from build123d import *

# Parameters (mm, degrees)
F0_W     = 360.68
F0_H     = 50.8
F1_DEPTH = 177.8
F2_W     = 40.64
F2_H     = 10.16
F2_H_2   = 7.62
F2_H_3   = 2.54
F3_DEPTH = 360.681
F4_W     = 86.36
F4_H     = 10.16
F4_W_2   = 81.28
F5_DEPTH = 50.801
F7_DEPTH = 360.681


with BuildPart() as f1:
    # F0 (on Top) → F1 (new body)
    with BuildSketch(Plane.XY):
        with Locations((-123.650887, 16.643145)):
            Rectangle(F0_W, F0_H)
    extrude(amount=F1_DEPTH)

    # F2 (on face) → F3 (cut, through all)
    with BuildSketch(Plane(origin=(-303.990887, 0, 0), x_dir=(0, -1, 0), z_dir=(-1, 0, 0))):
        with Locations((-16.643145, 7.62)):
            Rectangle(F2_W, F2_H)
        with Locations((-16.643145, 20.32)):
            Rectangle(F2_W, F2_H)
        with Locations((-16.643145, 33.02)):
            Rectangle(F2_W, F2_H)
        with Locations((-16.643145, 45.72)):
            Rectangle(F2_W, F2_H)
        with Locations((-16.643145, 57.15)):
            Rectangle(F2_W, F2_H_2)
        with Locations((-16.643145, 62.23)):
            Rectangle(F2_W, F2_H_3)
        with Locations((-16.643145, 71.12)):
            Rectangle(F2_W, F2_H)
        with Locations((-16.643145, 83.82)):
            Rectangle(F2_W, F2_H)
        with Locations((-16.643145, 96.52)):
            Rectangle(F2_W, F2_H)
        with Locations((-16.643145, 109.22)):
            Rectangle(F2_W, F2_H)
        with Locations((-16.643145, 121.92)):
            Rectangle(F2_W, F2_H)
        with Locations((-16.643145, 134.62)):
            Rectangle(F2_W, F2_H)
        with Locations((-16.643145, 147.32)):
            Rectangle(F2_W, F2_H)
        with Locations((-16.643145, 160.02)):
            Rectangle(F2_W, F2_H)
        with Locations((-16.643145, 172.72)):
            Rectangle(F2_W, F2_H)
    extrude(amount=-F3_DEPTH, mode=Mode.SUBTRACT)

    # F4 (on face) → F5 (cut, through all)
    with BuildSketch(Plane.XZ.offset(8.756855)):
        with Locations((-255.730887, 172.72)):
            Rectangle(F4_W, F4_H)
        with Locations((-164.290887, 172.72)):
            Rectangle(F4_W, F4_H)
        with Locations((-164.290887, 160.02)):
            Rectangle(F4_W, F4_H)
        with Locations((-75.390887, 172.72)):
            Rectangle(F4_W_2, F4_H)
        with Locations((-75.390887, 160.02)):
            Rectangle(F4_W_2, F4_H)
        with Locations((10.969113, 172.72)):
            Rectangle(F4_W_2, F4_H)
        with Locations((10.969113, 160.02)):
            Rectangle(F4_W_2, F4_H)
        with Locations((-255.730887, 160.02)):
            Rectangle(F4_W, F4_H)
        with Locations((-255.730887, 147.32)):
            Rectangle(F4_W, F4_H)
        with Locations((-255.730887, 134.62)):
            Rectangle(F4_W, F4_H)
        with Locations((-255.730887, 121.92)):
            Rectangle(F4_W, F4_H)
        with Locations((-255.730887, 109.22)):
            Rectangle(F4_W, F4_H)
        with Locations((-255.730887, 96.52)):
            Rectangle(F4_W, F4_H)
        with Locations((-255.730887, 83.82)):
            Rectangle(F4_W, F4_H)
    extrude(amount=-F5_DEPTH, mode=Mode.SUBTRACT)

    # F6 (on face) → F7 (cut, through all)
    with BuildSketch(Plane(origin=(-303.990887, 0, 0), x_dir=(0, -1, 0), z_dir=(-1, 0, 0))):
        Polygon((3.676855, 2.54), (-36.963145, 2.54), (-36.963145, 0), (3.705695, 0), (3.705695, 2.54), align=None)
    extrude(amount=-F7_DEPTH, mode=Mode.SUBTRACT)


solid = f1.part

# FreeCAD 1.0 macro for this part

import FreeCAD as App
import Part
import Sketcher

V = App.Vector
Q = App.Units.Quantity


def add_polygon(sketch, points):
    """Adds a closed chain of lines whose ends are joined by coincident constraints."""
    first, n = sketch.GeometryCount, len(points)
    for a, b in zip(points, points[1:] + points[:1]):
        sketch.addGeometry(Part.LineSegment(App.Vector(*a, 0), App.Vector(*b, 0)), False)
    for i in range(n):
        sketch.addConstraint(Sketcher.Constraint("Coincident", first + i, 2, first + (i + 1) % n, 1))

doc = App.newDocument("Part")
params = doc.addObject("Spreadsheet::Sheet", "Params")
for row, (alias, value) in enumerate([
    ("sketch1_height", "2 in"),
    ("sketch1_width", "14.2 in"),
    ("pad1_length", "7 in"),
    ("sketch2_width", "1.6 in"),
    ("sketch2_height", "0.4 in"),
    ("sketch3_width", "3.4 in"),
    ("sketch3_width2", "3.2 in"),
    ("sketch3_height", "0.4 in"),
    ("sketch4_height", "0.1 in"),
], start=1):
    params.set(f"A{row}", alias)
    params.set(f"B{row}", "=" + value)
    params.setAlias(f"B{row}", alias)

body = doc.addObject("PartDesign::Body", "Body")

sketch1 = body.newObject("Sketcher::SketchObject", "Sketch")
sketch1.AttachmentSupport = (doc.getObject("XY_Plane"), [""])
sketch1.MapMode = "FlatFace"
add_polygon(sketch1, [(-304, 42), (-304, -9), (57, -9), (57, 42)])
sketch1.addConstraint(Sketcher.Constraint("Vertical", 0))
sketch1.addConstraint(Sketcher.Constraint("Horizontal", 1))
sketch1.addConstraint(Sketcher.Constraint("Vertical", 2))
sketch1.addConstraint(Sketcher.Constraint("Horizontal", 3))
sketch1.addConstraint(Sketcher.Constraint("DistanceY", 0, 2, 0, 1, Q("2 in")))
sketch1.addConstraint(Sketcher.Constraint("DistanceX", 1, 1, 1, 2, Q("14.2 in")))
sketch1.addConstraint(Sketcher.Constraint("DistanceX", 0, 2, -1, 1, 303.990887))
sketch1.addConstraint(Sketcher.Constraint("DistanceY", 0, 2, -1, 1, 8.756855))
sketch1.setExpression("Constraints[8]", "Params.sketch1_height")
sketch1.setExpression("Constraints[9]", "Params.sketch1_width")
pad1 = body.newObject("PartDesign::Pad", "Pad")
pad1.Profile = sketch1
pad1.setExpression("Length", "Params.pad1_length")

sketch2 = body.newObject("Sketcher::SketchObject", "Sketch001")
sketch2.AttachmentSupport = (doc.getObject("YZ_Plane"), [""])
sketch2.MapMode = "FlatFace"
sketch2.AttachmentOffset = App.Placement(V(0, 0, -303.990887), App.Rotation())
add_polygon(sketch2, [(37, 13), (37, 3), (-4, 3), (-4, 13)])
add_polygon(sketch2, [(37, 25), (37, 15), (-4, 15), (-4, 25)])
add_polygon(sketch2, [(37, 38), (37, 28), (-4, 28), (-4, 38)])
add_polygon(sketch2, [(37, 51), (37, 41), (-4, 41), (-4, 51)])
add_polygon(sketch2, [(37, 53), (-4, 53), (-4, 64), (37, 64)])
add_polygon(sketch2, [(37, 76), (37, 66), (-4, 66), (-4, 76)])
add_polygon(sketch2, [(37, 89), (37, 79), (-4, 79), (-4, 89)])
add_polygon(sketch2, [(37, 102), (37, 91), (-4, 91), (-4, 102)])
add_polygon(sketch2, [(37, 114), (37, 104), (-4, 104), (-4, 114)])
add_polygon(sketch2, [(37, 127), (37, 117), (-4, 117), (-4, 127)])
add_polygon(sketch2, [(37, 140), (37, 130), (-4, 130), (-4, 140)])
add_polygon(sketch2, [(37, 152), (37, 142), (-4, 142), (-4, 152)])
add_polygon(sketch2, [(37, 165), (37, 155), (-4, 155), (-4, 165)])
add_polygon(sketch2, [(37, 178), (37, 168), (-4, 168), (-4, 178)])
sketch2.addConstraint(Sketcher.Constraint("Vertical", 0))
sketch2.addConstraint(Sketcher.Constraint("Horizontal", 1))
sketch2.addConstraint(Sketcher.Constraint("Vertical", 2))
sketch2.addConstraint(Sketcher.Constraint("Horizontal", 3))
sketch2.addConstraint(Sketcher.Constraint("Vertical", 4))
sketch2.addConstraint(Sketcher.Constraint("Horizontal", 5))
sketch2.addConstraint(Sketcher.Constraint("Vertical", 6))
sketch2.addConstraint(Sketcher.Constraint("Horizontal", 7))
sketch2.addConstraint(Sketcher.Constraint("Vertical", 8))
sketch2.addConstraint(Sketcher.Constraint("Horizontal", 9))
sketch2.addConstraint(Sketcher.Constraint("Vertical", 10))
sketch2.addConstraint(Sketcher.Constraint("Horizontal", 11))
sketch2.addConstraint(Sketcher.Constraint("Vertical", 12))
sketch2.addConstraint(Sketcher.Constraint("Horizontal", 13))
sketch2.addConstraint(Sketcher.Constraint("Vertical", 14))
sketch2.addConstraint(Sketcher.Constraint("Horizontal", 15))
sketch2.addConstraint(Sketcher.Constraint("Horizontal", 16))
sketch2.addConstraint(Sketcher.Constraint("Vertical", 17))
sketch2.addConstraint(Sketcher.Constraint("Horizontal", 18))
sketch2.addConstraint(Sketcher.Constraint("Vertical", 19))
sketch2.addConstraint(Sketcher.Constraint("Vertical", 20))
sketch2.addConstraint(Sketcher.Constraint("Horizontal", 21))
sketch2.addConstraint(Sketcher.Constraint("Vertical", 22))
sketch2.addConstraint(Sketcher.Constraint("Horizontal", 23))
sketch2.addConstraint(Sketcher.Constraint("Vertical", 24))
sketch2.addConstraint(Sketcher.Constraint("Horizontal", 25))
sketch2.addConstraint(Sketcher.Constraint("Vertical", 26))
sketch2.addConstraint(Sketcher.Constraint("Horizontal", 27))
sketch2.addConstraint(Sketcher.Constraint("Vertical", 28))
sketch2.addConstraint(Sketcher.Constraint("Horizontal", 29))
sketch2.addConstraint(Sketcher.Constraint("Vertical", 30))
sketch2.addConstraint(Sketcher.Constraint("Horizontal", 31))
sketch2.addConstraint(Sketcher.Constraint("Vertical", 32))
sketch2.addConstraint(Sketcher.Constraint("Horizontal", 33))
sketch2.addConstraint(Sketcher.Constraint("Vertical", 34))
sketch2.addConstraint(Sketcher.Constraint("Horizontal", 35))
sketch2.addConstraint(Sketcher.Constraint("Vertical", 36))
sketch2.addConstraint(Sketcher.Constraint("Horizontal", 37))
sketch2.addConstraint(Sketcher.Constraint("Vertical", 38))
sketch2.addConstraint(Sketcher.Constraint("Horizontal", 39))
sketch2.addConstraint(Sketcher.Constraint("Vertical", 40))
sketch2.addConstraint(Sketcher.Constraint("Horizontal", 41))
sketch2.addConstraint(Sketcher.Constraint("Vertical", 42))
sketch2.addConstraint(Sketcher.Constraint("Horizontal", 43))
sketch2.addConstraint(Sketcher.Constraint("Vertical", 44))
sketch2.addConstraint(Sketcher.Constraint("Horizontal", 45))
sketch2.addConstraint(Sketcher.Constraint("Vertical", 46))
sketch2.addConstraint(Sketcher.Constraint("Horizontal", 47))
sketch2.addConstraint(Sketcher.Constraint("Vertical", 48))
sketch2.addConstraint(Sketcher.Constraint("Horizontal", 49))
sketch2.addConstraint(Sketcher.Constraint("Vertical", 50))
sketch2.addConstraint(Sketcher.Constraint("Horizontal", 51))
sketch2.addConstraint(Sketcher.Constraint("Vertical", 52))
sketch2.addConstraint(Sketcher.Constraint("Horizontal", 53))
sketch2.addConstraint(Sketcher.Constraint("Vertical", 54))
sketch2.addConstraint(Sketcher.Constraint("Horizontal", 55))
sketch2.addConstraint(Sketcher.Constraint("Vertical", 3, 2, 4, 2))
sketch2.addConstraint(Sketcher.Constraint("Vertical", 2, 2, 5, 2))
sketch2.addConstraint(Sketcher.Constraint("Vertical", 7, 2, 8, 2))
sketch2.addConstraint(Sketcher.Constraint("Vertical", 6, 2, 9, 2))
sketch2.addConstraint(Sketcher.Constraint("Vertical", 11, 2, 12, 2))
sketch2.addConstraint(Sketcher.Constraint("Vertical", 10, 2, 13, 2))
sketch2.addConstraint(Sketcher.Constraint("Vertical", 14, 2, 16, 2))
sketch2.addConstraint(Sketcher.Constraint("Vertical", 15, 2, 18, 2))
sketch2.addConstraint(Sketcher.Constraint("Vertical", 19, 2, 20, 2))
sketch2.addConstraint(Sketcher.Constraint("Vertical", 17, 2, 21, 2))
sketch2.addConstraint(Sketcher.Constraint("Vertical", 23, 2, 24, 2))
sketch2.addConstraint(Sketcher.Constraint("Vertical", 22, 2, 25, 2))
sketch2.addConstraint(Sketcher.Constraint("Vertical", 27, 2, 28, 2))
sketch2.addConstraint(Sketcher.Constraint("Vertical", 26, 2, 29, 2))
sketch2.addConstraint(Sketcher.Constraint("Vertical", 31, 2, 32, 2))
sketch2.addConstraint(Sketcher.Constraint("Vertical", 30, 2, 33, 2))
sketch2.addConstraint(Sketcher.Constraint("Vertical", 35, 2, 36, 2))
sketch2.addConstraint(Sketcher.Constraint("Vertical", 34, 2, 37, 2))
sketch2.addConstraint(Sketcher.Constraint("Vertical", 39, 2, 40, 2))
sketch2.addConstraint(Sketcher.Constraint("Vertical", 38, 2, 41, 2))
sketch2.addConstraint(Sketcher.Constraint("Vertical", 43, 2, 44, 2))
sketch2.addConstraint(Sketcher.Constraint("Vertical", 42, 2, 45, 2))
sketch2.addConstraint(Sketcher.Constraint("Vertical", 47, 2, 48, 2))
sketch2.addConstraint(Sketcher.Constraint("Vertical", 46, 2, 49, 2))
sketch2.addConstraint(Sketcher.Constraint("Vertical", 51, 2, 52, 2))
sketch2.addConstraint(Sketcher.Constraint("Vertical", 50, 2, 53, 2))
sketch2.addConstraint(Sketcher.Constraint("Equal", 2, 4))
sketch2.addConstraint(Sketcher.Constraint("Equal", 6, 8))
sketch2.addConstraint(Sketcher.Constraint("Equal", 10, 12))
sketch2.addConstraint(Sketcher.Constraint("Equal", 14, 17))
sketch2.addConstraint(Sketcher.Constraint("Equal", 19, 20))
sketch2.addConstraint(Sketcher.Constraint("Equal", 22, 24))
sketch2.addConstraint(Sketcher.Constraint("Equal", 26, 28))
sketch2.addConstraint(Sketcher.Constraint("Equal", 30, 32))
sketch2.addConstraint(Sketcher.Constraint("Equal", 34, 36))
sketch2.addConstraint(Sketcher.Constraint("Equal", 38, 40))
sketch2.addConstraint(Sketcher.Constraint("Equal", 42, 44))
sketch2.addConstraint(Sketcher.Constraint("Equal", 46, 48))
sketch2.addConstraint(Sketcher.Constraint("Equal", 50, 52))
sketch2.addConstraint(Sketcher.Constraint("DistanceX", 1, 2, 1, 1, Q("1.6 in")))
sketch2.addConstraint(Sketcher.Constraint("DistanceY", 0, 2, 0, 1, Q("0.4 in")))
sketch2.addConstraint(Sketcher.Constraint("DistanceY", -1, 1, 6, 2, Q("1 in")))
sketch2.addConstraint(Sketcher.Constraint("DistanceY", -1, 1, 14, 2, Q("2 in")))
sketch2.addConstraint(Sketcher.Constraint("DistanceY", -1, 1, 22, 2, Q("3 in")))
sketch2.addConstraint(Sketcher.Constraint("DistanceY", -1, 1, 30, 2, Q("4 in")))
sketch2.addConstraint(Sketcher.Constraint("DistanceY", -1, 1, 38, 2, Q("5 in")))
sketch2.addConstraint(Sketcher.Constraint("DistanceY", -1, 1, 46, 2, Q("6 in")))
sketch2.addConstraint(Sketcher.Constraint("DistanceY", -1, 1, 54, 2, Q("7 in")))
sketch2.addConstraint(Sketcher.Constraint("DistanceY", 0, 2, 8, 2, Q("1 in")))
sketch2.addConstraint(Sketcher.Constraint("DistanceY", 9, 2, 16, 2, Q("1 in")))
sketch2.addConstraint(Sketcher.Constraint("DistanceY", 19, 2, 24, 2, Q("1 in")))
sketch2.addConstraint(Sketcher.Constraint("DistanceY", 24, 2, 32, 2, Q("1 in")))
sketch2.addConstraint(Sketcher.Constraint("DistanceY", 32, 2, 40, 2, Q("1 in")))
sketch2.addConstraint(Sketcher.Constraint("DistanceY", 40, 2, 48, 2, Q("1 in")))
sketch2.addConstraint(Sketcher.Constraint("DistanceY", -1, 1, 0, 2, Q("0.1 in")))
sketch2.addConstraint(Sketcher.Constraint("DistanceX", -1, 1, 0, 2, 36.963145))
sketch2.setExpression("Constraints[151]", "Params.sketch2_width")
sketch2.setExpression("Constraints[152]", "Params.sketch2_height")
pocket1 = body.newObject("PartDesign::Pocket", "Pocket")
pocket1.Profile = sketch2
pocket1.Type = "ThroughAll"
pocket1.Reversed = True

sketch3 = body.newObject("Sketcher::SketchObject", "Sketch002")
sketch3.AttachmentSupport = (doc.getObject("XZ_Plane"), [""])
sketch3.MapMode = "FlatFace"
sketch3.AttachmentOffset = App.Placement(V(0, 0, 8.756855), App.Rotation())
add_polygon(sketch3, [(-299, 178), (-299, 168), (-213, 168), (-213, 178)])
add_polygon(sketch3, [(-207, 178), (-207, 168), (-121, 168), (-121, 178)])
add_polygon(sketch3, [(-207, 165), (-207, 155), (-121, 155), (-121, 165)])
add_polygon(sketch3, [(-116, 178), (-116, 168), (-35, 168), (-35, 178)])
add_polygon(sketch3, [(-116, 165), (-116, 155), (-35, 155), (-35, 165)])
add_polygon(sketch3, [(-30, 178), (-30, 168), (52, 168), (52, 178)])
add_polygon(sketch3, [(-30, 165), (-30, 155), (52, 155), (52, 165)])
add_polygon(sketch3, [(-299, 165), (-299, 155), (-213, 155), (-213, 165)])
add_polygon(sketch3, [(-299, 152), (-299, 142), (-213, 142), (-213, 152)])
add_polygon(sketch3, [(-299, 140), (-299, 130), (-213, 130), (-213, 140)])
add_polygon(sketch3, [(-299, 127), (-299, 117), (-213, 117), (-213, 127)])
add_polygon(sketch3, [(-299, 114), (-299, 104), (-213, 104), (-213, 114)])
add_polygon(sketch3, [(-299, 102), (-299, 91), (-213, 91), (-213, 102)])
add_polygon(sketch3, [(-299, 89), (-299, 79), (-213, 79), (-213, 89)])
sketch3.addConstraint(Sketcher.Constraint("Vertical", 0))
sketch3.addConstraint(Sketcher.Constraint("Horizontal", 1))
sketch3.addConstraint(Sketcher.Constraint("Vertical", 2))
sketch3.addConstraint(Sketcher.Constraint("Horizontal", 3))
sketch3.addConstraint(Sketcher.Constraint("Vertical", 4))
sketch3.addConstraint(Sketcher.Constraint("Horizontal", 5))
sketch3.addConstraint(Sketcher.Constraint("Vertical", 6))
sketch3.addConstraint(Sketcher.Constraint("Horizontal", 7))
sketch3.addConstraint(Sketcher.Constraint("Vertical", 8))
sketch3.addConstraint(Sketcher.Constraint("Horizontal", 9))
sketch3.addConstraint(Sketcher.Constraint("Vertical", 10))
sketch3.addConstraint(Sketcher.Constraint("Horizontal", 11))
sketch3.addConstraint(Sketcher.Constraint("Vertical", 12))
sketch3.addConstraint(Sketcher.Constraint("Horizontal", 13))
sketch3.addConstraint(Sketcher.Constraint("Vertical", 14))
sketch3.addConstraint(Sketcher.Constraint("Horizontal", 15))
sketch3.addConstraint(Sketcher.Constraint("Vertical", 16))
sketch3.addConstraint(Sketcher.Constraint("Horizontal", 17))
sketch3.addConstraint(Sketcher.Constraint("Vertical", 18))
sketch3.addConstraint(Sketcher.Constraint("Horizontal", 19))
sketch3.addConstraint(Sketcher.Constraint("Vertical", 20))
sketch3.addConstraint(Sketcher.Constraint("Horizontal", 21))
sketch3.addConstraint(Sketcher.Constraint("Vertical", 22))
sketch3.addConstraint(Sketcher.Constraint("Horizontal", 23))
sketch3.addConstraint(Sketcher.Constraint("Vertical", 24))
sketch3.addConstraint(Sketcher.Constraint("Horizontal", 25))
sketch3.addConstraint(Sketcher.Constraint("Vertical", 26))
sketch3.addConstraint(Sketcher.Constraint("Horizontal", 27))
sketch3.addConstraint(Sketcher.Constraint("Vertical", 28))
sketch3.addConstraint(Sketcher.Constraint("Horizontal", 29))
sketch3.addConstraint(Sketcher.Constraint("Vertical", 30))
sketch3.addConstraint(Sketcher.Constraint("Horizontal", 31))
sketch3.addConstraint(Sketcher.Constraint("Vertical", 32))
sketch3.addConstraint(Sketcher.Constraint("Horizontal", 33))
sketch3.addConstraint(Sketcher.Constraint("Vertical", 34))
sketch3.addConstraint(Sketcher.Constraint("Horizontal", 35))
sketch3.addConstraint(Sketcher.Constraint("Vertical", 36))
sketch3.addConstraint(Sketcher.Constraint("Horizontal", 37))
sketch3.addConstraint(Sketcher.Constraint("Vertical", 38))
sketch3.addConstraint(Sketcher.Constraint("Horizontal", 39))
sketch3.addConstraint(Sketcher.Constraint("Vertical", 40))
sketch3.addConstraint(Sketcher.Constraint("Horizontal", 41))
sketch3.addConstraint(Sketcher.Constraint("Vertical", 42))
sketch3.addConstraint(Sketcher.Constraint("Horizontal", 43))
sketch3.addConstraint(Sketcher.Constraint("Vertical", 44))
sketch3.addConstraint(Sketcher.Constraint("Horizontal", 45))
sketch3.addConstraint(Sketcher.Constraint("Vertical", 46))
sketch3.addConstraint(Sketcher.Constraint("Horizontal", 47))
sketch3.addConstraint(Sketcher.Constraint("Vertical", 48))
sketch3.addConstraint(Sketcher.Constraint("Horizontal", 49))
sketch3.addConstraint(Sketcher.Constraint("Vertical", 50))
sketch3.addConstraint(Sketcher.Constraint("Horizontal", 51))
sketch3.addConstraint(Sketcher.Constraint("Vertical", 52))
sketch3.addConstraint(Sketcher.Constraint("Horizontal", 53))
sketch3.addConstraint(Sketcher.Constraint("Vertical", 54))
sketch3.addConstraint(Sketcher.Constraint("Horizontal", 55))
sketch3.addConstraint(Sketcher.Constraint("Horizontal", 1, 2, 4, 2))
sketch3.addConstraint(Sketcher.Constraint("Horizontal", 3, 2, 6, 2))
sketch3.addConstraint(Sketcher.Constraint("Horizontal", 5, 2, 12, 2))
sketch3.addConstraint(Sketcher.Constraint("Horizontal", 7, 2, 14, 2))
sketch3.addConstraint(Sketcher.Constraint("Horizontal", 9, 2, 16, 2))
sketch3.addConstraint(Sketcher.Constraint("Horizontal", 11, 2, 18, 2))
sketch3.addConstraint(Sketcher.Constraint("Horizontal", 13, 2, 20, 2))
sketch3.addConstraint(Sketcher.Constraint("Horizontal", 15, 2, 22, 2))
sketch3.addConstraint(Sketcher.Constraint("Horizontal", 17, 2, 24, 2))
sketch3.addConstraint(Sketcher.Constraint("Horizontal", 19, 2, 26, 2))
sketch3.addConstraint(Sketcher.Constraint("Horizontal", 25, 2, 28, 2))
sketch3.addConstraint(Sketcher.Constraint("Horizontal", 27, 2, 30, 2))
sketch3.addConstraint(Sketcher.Constraint("Vertical", 7, 2, 8, 2))
sketch3.addConstraint(Sketcher.Constraint("Vertical", 6, 2, 9, 2))
sketch3.addConstraint(Sketcher.Constraint("Vertical", 15, 2, 16, 2))
sketch3.addConstraint(Sketcher.Constraint("Vertical", 14, 2, 17, 2))
sketch3.addConstraint(Sketcher.Constraint("Vertical", 23, 2, 24, 2))
sketch3.addConstraint(Sketcher.Constraint("Vertical", 22, 2, 25, 2))
sketch3.addConstraint(Sketcher.Constraint("Vertical", 3, 2, 28, 2))
sketch3.addConstraint(Sketcher.Constraint("Vertical", 2, 2, 29, 2))
sketch3.addConstraint(Sketcher.Constraint("Vertical", 31, 2, 32, 2))
sketch3.addConstraint(Sketcher.Constraint("Vertical", 30, 2, 33, 2))
sketch3.addConstraint(Sketcher.Constraint("Vertical", 35, 2, 36, 2))
sketch3.addConstraint(Sketcher.Constraint("Vertical", 34, 2, 37, 2))
sketch3.addConstraint(Sketcher.Constraint("Vertical", 39, 2, 40, 2))
sketch3.addConstraint(Sketcher.Constraint("Vertical", 38, 2, 41, 2))
sketch3.addConstraint(Sketcher.Constraint("Vertical", 43, 2, 44, 2))
sketch3.addConstraint(Sketcher.Constraint("Vertical", 42, 2, 45, 2))
sketch3.addConstraint(Sketcher.Constraint("Vertical", 47, 2, 48, 2))
sketch3.addConstraint(Sketcher.Constraint("Vertical", 46, 2, 49, 2))
sketch3.addConstraint(Sketcher.Constraint("Vertical", 51, 2, 52, 2))
sketch3.addConstraint(Sketcher.Constraint("Vertical", 50, 2, 53, 2))
sketch3.addConstraint(Sketcher.Constraint("Equal", 3, 5))
sketch3.addConstraint(Sketcher.Constraint("Equal", 19, 21))
sketch3.addConstraint(Sketcher.Constraint("Equal", 6, 8))
sketch3.addConstraint(Sketcher.Constraint("Equal", 30, 32))
sketch3.addConstraint(Sketcher.Constraint("Equal", 34, 36))
sketch3.addConstraint(Sketcher.Constraint("Equal", 38, 40))
sketch3.addConstraint(Sketcher.Constraint("Equal", 42, 44))
sketch3.addConstraint(Sketcher.Constraint("Equal", 46, 48))
sketch3.addConstraint(Sketcher.Constraint("Equal", 50, 52))
sketch3.addConstraint(Sketcher.Constraint("DistanceX", 1, 1, 1, 2, Q("3.4 in")))
sketch3.addConstraint(Sketcher.Constraint("DistanceX", 13, 1, 13, 2, Q("3.2 in")))
sketch3.addConstraint(Sketcher.Constraint("DistanceY", 0, 2, 0, 1, Q("0.4 in")))
sketch3.addConstraint(Sketcher.Constraint("DistanceY", -1, 1, 2, 2, Q("7 in")))
sketch3.addConstraint(Sketcher.Constraint("DistanceY", -1, 1, 34, 2, Q("6 in")))
sketch3.addConstraint(Sketcher.Constraint("DistanceY", -1, 1, 42, 2, Q("5 in")))
sketch3.addConstraint(Sketcher.Constraint("DistanceY", -1, 1, 50, 2, Q("4 in")))
sketch3.addConstraint(Sketcher.Constraint("DistanceX", 0, 2, 5, 2, Q("7 in")))
sketch3.addConstraint(Sketcher.Constraint("DistanceY", 36, 2, 28, 2, Q("1 in")))
sketch3.addConstraint(Sketcher.Constraint("DistanceY", 44, 2, 36, 2, Q("1 in")))
sketch3.addConstraint(Sketcher.Constraint("DistanceY", 52, 2, 44, 2, Q("1 in")))
sketch3.addConstraint(Sketcher.Constraint("DistanceY", -1, 1, 8, 2, Q("6.1 in")))
sketch3.addConstraint(Sketcher.Constraint("DistanceX", 5, 2, 12, 2, Q("0.2 in")))
sketch3.addConstraint(Sketcher.Constraint("DistanceX", 13, 2, 20, 2, Q("0.2 in")))
sketch3.addConstraint(Sketcher.Constraint("DistanceX", 0, 2, -1, 1, 298.910887))
sketch3.setExpression("Constraints[153]", "Params.sketch3_width")
sketch3.setExpression("Constraints[154]", "Params.sketch3_width2")
sketch3.setExpression("Constraints[155]", "Params.sketch3_height")
pocket2 = body.newObject("PartDesign::Pocket", "Pocket001")
pocket2.Profile = sketch3
pocket2.Type = "ThroughAll"

sketch4 = body.newObject("Sketcher::SketchObject", "Sketch003")
sketch4.AttachmentSupport = (doc.getObject("YZ_Plane"), [""])
sketch4.MapMode = "FlatFace"
sketch4.AttachmentOffset = App.Placement(V(0, 0, -303.990887), App.Rotation())
add_polygon(sketch4, [(37, 2.5), (37, 0), (-3.7, 0), (-3.7, 2.5)])
sketch4.addConstraint(Sketcher.Constraint("Vertical", 0))
sketch4.addConstraint(Sketcher.Constraint("Horizontal", 1))
sketch4.addConstraint(Sketcher.Constraint("Vertical", 2))
sketch4.addConstraint(Sketcher.Constraint("Horizontal", 3))
sketch4.addConstraint(Sketcher.Constraint("PointOnObject", 0, 2, -1))
sketch4.addConstraint(Sketcher.Constraint("DistanceY", 0, 2, 0, 1, Q("0.1 in")))
sketch4.addConstraint(Sketcher.Constraint("DistanceX", 1, 2, 1, 1, 40.66884))
sketch4.addConstraint(Sketcher.Constraint("DistanceX", -1, 1, 0, 2, 36.963145))
sketch4.setExpression("Constraints[9]", "Params.sketch4_height")
pocket3 = body.newObject("PartDesign::Pocket", "Pocket002")
pocket3.Profile = sketch4
pocket3.Type = "ThroughAll"
pocket3.Reversed = True

doc.recompute()
